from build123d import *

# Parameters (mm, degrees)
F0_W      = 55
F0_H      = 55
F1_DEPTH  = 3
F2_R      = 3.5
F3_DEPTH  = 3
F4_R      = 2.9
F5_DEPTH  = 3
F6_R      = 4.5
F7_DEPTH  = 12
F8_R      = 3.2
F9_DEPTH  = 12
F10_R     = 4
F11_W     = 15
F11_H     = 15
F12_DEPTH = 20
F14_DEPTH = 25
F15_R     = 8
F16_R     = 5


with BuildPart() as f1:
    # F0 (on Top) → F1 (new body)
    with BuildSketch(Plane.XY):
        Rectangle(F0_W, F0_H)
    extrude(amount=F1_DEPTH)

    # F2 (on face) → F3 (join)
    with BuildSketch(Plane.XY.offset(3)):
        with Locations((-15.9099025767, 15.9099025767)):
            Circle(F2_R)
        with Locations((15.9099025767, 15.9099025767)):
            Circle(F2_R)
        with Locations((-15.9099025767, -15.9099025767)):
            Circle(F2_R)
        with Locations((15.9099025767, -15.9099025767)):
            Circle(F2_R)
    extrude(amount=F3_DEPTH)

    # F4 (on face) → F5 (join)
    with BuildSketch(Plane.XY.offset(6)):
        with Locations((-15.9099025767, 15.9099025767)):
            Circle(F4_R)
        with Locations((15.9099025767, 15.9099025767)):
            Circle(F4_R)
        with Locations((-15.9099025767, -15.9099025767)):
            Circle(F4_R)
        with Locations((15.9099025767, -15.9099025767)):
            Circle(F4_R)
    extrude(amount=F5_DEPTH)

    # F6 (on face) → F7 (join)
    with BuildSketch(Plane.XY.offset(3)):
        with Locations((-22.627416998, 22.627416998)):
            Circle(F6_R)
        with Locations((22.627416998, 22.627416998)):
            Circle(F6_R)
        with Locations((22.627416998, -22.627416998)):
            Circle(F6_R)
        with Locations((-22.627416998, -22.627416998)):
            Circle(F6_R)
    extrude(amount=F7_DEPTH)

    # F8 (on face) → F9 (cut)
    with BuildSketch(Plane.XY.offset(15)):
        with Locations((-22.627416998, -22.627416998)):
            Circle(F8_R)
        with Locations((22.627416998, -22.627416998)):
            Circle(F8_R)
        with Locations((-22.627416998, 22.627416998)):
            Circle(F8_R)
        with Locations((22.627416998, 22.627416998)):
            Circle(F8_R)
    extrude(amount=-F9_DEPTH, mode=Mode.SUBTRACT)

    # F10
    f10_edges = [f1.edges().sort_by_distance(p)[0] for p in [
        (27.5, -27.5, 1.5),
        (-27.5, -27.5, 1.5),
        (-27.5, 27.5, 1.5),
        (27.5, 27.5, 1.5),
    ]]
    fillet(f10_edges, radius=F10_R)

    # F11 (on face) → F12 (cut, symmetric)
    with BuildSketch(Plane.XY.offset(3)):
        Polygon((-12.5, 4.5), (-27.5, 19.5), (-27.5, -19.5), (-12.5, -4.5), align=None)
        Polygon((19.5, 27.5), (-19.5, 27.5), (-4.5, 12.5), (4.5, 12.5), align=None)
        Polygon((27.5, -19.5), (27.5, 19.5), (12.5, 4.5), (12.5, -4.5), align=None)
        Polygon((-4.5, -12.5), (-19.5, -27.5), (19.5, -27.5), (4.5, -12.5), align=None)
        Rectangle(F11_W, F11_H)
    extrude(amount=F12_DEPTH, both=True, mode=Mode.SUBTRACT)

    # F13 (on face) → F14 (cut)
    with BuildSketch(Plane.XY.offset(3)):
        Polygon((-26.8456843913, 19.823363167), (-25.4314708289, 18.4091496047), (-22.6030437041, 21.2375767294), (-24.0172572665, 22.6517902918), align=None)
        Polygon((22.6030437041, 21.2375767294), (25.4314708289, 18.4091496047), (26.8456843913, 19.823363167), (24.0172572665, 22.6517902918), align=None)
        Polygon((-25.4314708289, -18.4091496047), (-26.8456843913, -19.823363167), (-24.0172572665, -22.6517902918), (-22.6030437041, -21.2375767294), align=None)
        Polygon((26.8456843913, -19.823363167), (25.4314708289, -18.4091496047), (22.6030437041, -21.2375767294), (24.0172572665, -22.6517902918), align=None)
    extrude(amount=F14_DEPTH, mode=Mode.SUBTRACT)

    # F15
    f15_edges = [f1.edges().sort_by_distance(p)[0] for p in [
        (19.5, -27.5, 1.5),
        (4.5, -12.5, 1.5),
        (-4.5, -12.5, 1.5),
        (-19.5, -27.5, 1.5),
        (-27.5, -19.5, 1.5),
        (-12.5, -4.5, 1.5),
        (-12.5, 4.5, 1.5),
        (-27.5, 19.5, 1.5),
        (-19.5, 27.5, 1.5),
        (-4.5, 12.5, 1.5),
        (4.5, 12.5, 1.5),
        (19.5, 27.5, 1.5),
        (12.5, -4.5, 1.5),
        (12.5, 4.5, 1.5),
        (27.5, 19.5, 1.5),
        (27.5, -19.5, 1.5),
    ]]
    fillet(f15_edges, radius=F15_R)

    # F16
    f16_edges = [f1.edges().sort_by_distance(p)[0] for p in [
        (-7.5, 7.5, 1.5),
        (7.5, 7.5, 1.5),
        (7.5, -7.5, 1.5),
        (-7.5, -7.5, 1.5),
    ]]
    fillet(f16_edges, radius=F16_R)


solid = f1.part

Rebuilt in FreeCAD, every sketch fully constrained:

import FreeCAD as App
import Part
import Sketcher

V = App.Vector


def edges_at(feature, points):
    """Names of the edges that pass closest to the given points."""
    edges = feature.Shape.Edges
    near = lambda p: min(range(len(edges)), key=lambda i: edges[i].distToShape(Part.Vertex(*p))[0])
    return sorted({f"Edge{near(p) + 1}" for p in points})


def add_polygon(sketch, points):
    """Adds a closed chain of lines whose ends are joined by coincident constraints."""
    first, n = sketch.GeometryCount, len(points)
    for a, b in zip(points, points[1:] + points[:1]):
        sketch.addGeometry(Part.LineSegment(App.Vector(*a, 0), App.Vector(*b, 0)), False)
    for i in range(n):
        sketch.addConstraint(Sketcher.Constraint("Coincident", first + i, 2, first + (i + 1) % n, 1))

doc = App.newDocument("Part")
body = doc.addObject("PartDesign::Body", "Body")

# Sketch on XY plane
sketch1 = body.newObject("Sketcher::SketchObject", "Sketch")
sketch1.AttachmentSupport = (doc.getObject("XY_Plane"), [""])
sketch1.MapMode = "FlatFace"
add_polygon(sketch1, [(-28, 28), (-28, -28), (28, -28), (28, 28)])  # lines 0-3
sketch1.addConstraint([
    Sketcher.Constraint("Vertical", 0),
    Sketcher.Constraint("Horizontal", 1),
    Sketcher.Constraint("Vertical", 2),
    Sketcher.Constraint("Horizontal", 3),
    Sketcher.Constraint("Symmetric", 0, 2, 2, 2, -1, 1),
    Sketcher.Constraint("Equal", 3, 0),
    Sketcher.Constraint("DistanceX", 1, 1, 1, 2, 55.0),
])
pad1 = body.newObject("PartDesign::Pad", "Pad")
pad1.Profile = sketch1
pad1.Length = 3

# Sketch on XY plane
sketch2 = body.newObject("Sketcher::SketchObject", "Sketch001")
sketch2.AttachmentSupport = (doc.getObject("XY_Plane"), [""])
sketch2.MapMode = "FlatFace"
sketch2.AttachmentOffset = App.Placement(V(0, 0, 3), App.Rotation())
sketch2.addGeometry([
    Part.Circle(V(-15.9, 15.9, 0), V(0, 0, 1), 3.5),
    Part.Circle(V(15.9, 15.9, 0), V(0, 0, 1), 3.5),
    Part.Circle(V(-15.9, -15.9, 0), V(0, 0, 1), 3.5),
    Part.Circle(V(15.9, -15.9, 0), V(0, 0, 1), 3.5),
], False)
sketch2.addConstraint([
    Sketcher.Constraint("Equal", 0, 1),
    Sketcher.Constraint("Equal", 1, 2),
    Sketcher.Constraint("Equal", 2, 3),
    Sketcher.Constraint("Symmetric", 1, 3, 2, 3, -1, 1),
    Sketcher.Constraint("Symmetric", 0, 3, 3, 3, -1, 1),
    Sketcher.Constraint("Symmetric", 0, 3, 1, 3, -2),
    Sketcher.Constraint("Diameter", 0, 7.0),
    Sketcher.Constraint("DistanceX", 0, 3, -1, 1, 15.909903),
    Sketcher.Constraint("DistanceY", -1, 1, 0, 3, 15.909903),
])
pad2 = body.newObject("PartDesign::Pad", "Pad001")
pad2.Profile = sketch2
pad2.Length = 3

# Sketch on XY plane
sketch3 = body.newObject("Sketcher::SketchObject", "Sketch002")
sketch3.AttachmentSupport = (doc.getObject("XY_Plane"), [""])
sketch3.MapMode = "FlatFace"
sketch3.AttachmentOffset = App.Placement(V(0, 0, 6), App.Rotation())
sketch3.addGeometry([
    Part.Circle(V(-15.9, 15.9, 0), V(0, 0, 1), 2.9),
    Part.Circle(V(15.9, 15.9, 0), V(0, 0, 1), 2.9),
    Part.Circle(V(-15.9, -15.9, 0), V(0, 0, 1), 2.9),
    Part.Circle(V(15.9, -15.9, 0), V(0, 0, 1), 2.9),
], False)
sketch3.addConstraint([
    Sketcher.Constraint("Equal", 0, 1),
    Sketcher.Constraint("Equal", 1, 2),
    Sketcher.Constraint("Equal", 2, 3),
    Sketcher.Constraint("Symmetric", 1, 3, 2, 3, -1, 1),
    Sketcher.Constraint("Symmetric", 0, 3, 3, 3, -1, 1),
    Sketcher.Constraint("Symmetric", 0, 3, 1, 3, -2),
    Sketcher.Constraint("Diameter", 0, 5.8),
    Sketcher.Constraint("DistanceX", 0, 3, -1, 1, 15.909903),
    Sketcher.Constraint("DistanceY", -1, 1, 0, 3, 15.909903),
])
pad3 = body.newObject("PartDesign::Pad", "Pad002")
pad3.Profile = sketch3
pad3.Length = 3

# Sketch on XY plane
sketch4 = body.newObject("Sketcher::SketchObject", "Sketch003")
sketch4.AttachmentSupport = (doc.getObject("XY_Plane"), [""])
sketch4.MapMode = "FlatFace"
sketch4.AttachmentOffset = App.Placement(V(0, 0, 3), App.Rotation())
sketch4.addGeometry([
    Part.Circle(V(-22.6, 22.6, 0), V(0, 0, 1), 4.5),
    Part.Circle(V(22.6, 22.6, 0), V(0, 0, 1), 4.5),
    Part.Circle(V(22.6, -22.6, 0), V(0, 0, 1), 4.5),
    Part.Circle(V(-22.6, -22.6, 0), V(0, 0, 1), 4.5),
], False)
sketch4.addConstraint([
    Sketcher.Constraint("Equal", 0, 1),
    Sketcher.Constraint("Equal", 1, 2),
    Sketcher.Constraint("Equal", 2, 3),
    Sketcher.Constraint("Symmetric", 0, 3, 2, 3, -1, 1),
    Sketcher.Constraint("Symmetric", 1, 3, 3, 3, -1, 1),
    Sketcher.Constraint("Symmetric", 0, 3, 1, 3, -2),
    Sketcher.Constraint("Diameter", 0, 9.0),
    Sketcher.Constraint("DistanceX", 0, 3, -1, 1, 22.627417),
    Sketcher.Constraint("DistanceY", -1, 1, 0, 3, 22.627417),
])
pad4 = body.newObject("PartDesign::Pad", "Pad003")
pad4.Profile = sketch4
pad4.Length = 12

# Sketch on XY plane
sketch5 = body.newObject("Sketcher::SketchObject", "Sketch004")
sketch5.AttachmentSupport = (doc.getObject("XY_Plane"), [""])
sketch5.MapMode = "FlatFace"
sketch5.AttachmentOffset = App.Placement(V(0, 0, 15), App.Rotation())
sketch5.addGeometry([
    Part.Circle(V(-22.6, -22.6, 0), V(0, 0, 1), 3.2),
    Part.Circle(V(22.6, -22.6, 0), V(0, 0, 1), 3.2),
    Part.Circle(V(-22.6, 22.6, 0), V(0, 0, 1), 3.2),
    Part.Circle(V(22.6, 22.6, 0), V(0, 0, 1), 3.2),
], False)
sketch5.addConstraint([
    Sketcher.Constraint("Equal", 0, 1),
    Sketcher.Constraint("Equal", 1, 2),
    Sketcher.Constraint("Equal", 2, 3),
    Sketcher.Constraint("Symmetric", 1, 3, 2, 3, -1, 1),
    Sketcher.Constraint("Symmetric", 0, 3, 3, 3, -1, 1),
    Sketcher.Constraint("Symmetric", 0, 3, 1, 3, -2),
    Sketcher.Constraint("Diameter", 0, 6.4),
    Sketcher.Constraint("DistanceX", 0, 3, -1, 1, 22.627417),
    Sketcher.Constraint("DistanceY", 0, 3, -1, 1, 22.627417),
])
pocket1 = body.newObject("PartDesign::Pocket", "Pocket")
pocket1.Profile = sketch5
pocket1.Length = 12
doc.recompute()

fillet = body.newObject("PartDesign::Fillet", "Fillet")
fillet.Base = (pocket1, edges_at(pocket1, [
    (27.5, -27.5, 1.5),
    (-27.5, -27.5, 1.5),
    (-27.5, 27.5, 1.5),
    (27.5, 27.5, 1.5),
]))
fillet.Radius = 4

# Sketch on XY plane
sketch6 = body.newObject("Sketcher::SketchObject", "Sketch005")
sketch6.AttachmentSupport = (doc.getObject("XY_Plane"), [""])
sketch6.MapMode = "FlatFace"
sketch6.AttachmentOffset = App.Placement(V(0, 0, 3), App.Rotation())
add_polygon(sketch6, [(-12, 4), (-28, 20), (-28, -20), (-12, -4)])  # lines 0-3
add_polygon(sketch6, [(20, 28), (-20, 28), (-4, 12), (4, 12)])  # lines 4-7
add_polygon(sketch6, [(28, -20), (28, 20), (12, 4), (12, -4)])  # lines 8-11
add_polygon(sketch6, [(-4, -12), (-20, -28), (20, -28), (4, -12)])  # lines 12-15
add_polygon(sketch6, [(-8, 8), (-8, -8), (8, -8), (8, 8)])  # lines 16-19
sketch6.addConstraint([
    Sketcher.Constraint("Vertical", 1),
    Sketcher.Constraint("Vertical", 3),
    Sketcher.Constraint("Horizontal", 4),
    Sketcher.Constraint("Horizontal", 6),
    Sketcher.Constraint("Vertical", 8),
    Sketcher.Constraint("Vertical", 10),
    Sketcher.Constraint("Horizontal", 13),
    Sketcher.Constraint("Horizontal", 15),
    Sketcher.Constraint("Vertical", 16),
    Sketcher.Constraint("Horizontal", 17),
    Sketcher.Constraint("Vertical", 18),
    Sketcher.Constraint("Horizontal", 19),
    Sketcher.Constraint("Symmetric", 1, 2, 8, 2, -1, 1),
    Sketcher.Constraint("Symmetric", 2, 2, 9, 2, -1, 1),
    Sketcher.Constraint("Symmetric", 7, 2, 12, 2, -1, 1),
    Sketcher.Constraint("Symmetric", 5, 2, 14, 2, -1, 1),
    Sketcher.Constraint("Symmetric", 16, 2, 18, 2, -1, 1),
    Sketcher.Constraint("Perpendicular", 0, 2),
    Sketcher.Constraint("Perpendicular", 2, 5),
    Sketcher.Constraint("Perpendicular", 5, 7),
    Sketcher.Constraint("Perpendicular", 9, 11),
    Sketcher.Constraint("Perpendicular", 11, 12),
    Sketcher.Constraint("Perpendicular", 12, 14),
    Sketcher.Constraint("Horizontal", 0, 2, 8, 2),
    Sketcher.Constraint("Horizontal", 3, 2, 9, 2),
    Sketcher.Constraint("Horizontal", 2, 2, 10, 2),
    Sketcher.Constraint("Vertical", 4, 2, 12, 2),
    Sketcher.Constraint("Equal", 13, 1),
    Sketcher.Constraint("Equal", 15, 3),
    Sketcher.Constraint("Equal", 19, 16),
    Sketcher.Constraint("DistanceX", 4, 2, 4, 1, 39.0),
    Sketcher.Constraint("DistanceX", 6, 1, 6, 2, 9.0),
    Sketcher.Constraint("DistanceX", 17, 1, 17, 2, 15.0),
    Sketcher.Constraint("DistanceX", 0, 2, 4, 2, 8.0),
    Sketcher.Constraint("DistanceY", 0, 2, 4, 2, 8.0),
])
pocket2 = body.newObject("PartDesign::Pocket", "Pocket001")
pocket2.Profile = sketch6
pocket2.Length = 40
pocket2.Midplane = True

# Sketch on XY plane
sketch7 = body.newObject("Sketcher::SketchObject", "Sketch006")
sketch7.AttachmentSupport = (doc.getObject("XY_Plane"), [""])
sketch7.MapMode = "FlatFace"
sketch7.AttachmentOffset = App.Placement(V(0, 0, 3), App.Rotation())
add_polygon(sketch7, [(-26.8, 19.8), (-25.4, 18.4), (-22.6, 21.2), (-24, 22.7)])  # lines 0-3
add_polygon(sketch7, [(22.6, 21.2), (25.4, 18.4), (26.8, 19.8), (24, 22.7)])  # lines 4-7
add_polygon(sketch7, [(-25.4, -18.4), (-26.8, -19.8), (-24, -22.7), (-22.6, -21.2)])  # lines 8-11
add_polygon(sketch7, [(26.8, -19.8), (25.4, -18.4), (22.6, -21.2), (24, -22.7)])  # lines 12-15
sketch7.addConstraint([
    Sketcher.Constraint("Symmetric", 5, 2, 8, 2, -1, 1),
    Sketcher.Constraint("Symmetric", 6, 2, 9, 2, -1, 1),
    Sketcher.Constraint("Symmetric", 7, 2, 10, 2, -1, 1),
    Sketcher.Constraint("Symmetric", 4, 2, 11, 2, -1, 1),
    Sketcher.Constraint("Symmetric", 0, 2, 12, 2, -1, 1),
    Sketcher.Constraint("Symmetric", 1, 2, 13, 2, -1, 1),
    Sketcher.Constraint("Symmetric", 2, 2, 14, 2, -1, 1),
    Sketcher.Constraint("Symmetric", 3, 2, 15, 2, -1, 1),
    Sketcher.Constraint("Symmetric", 0, 2, 4, 2, -2),
    Sketcher.Constraint("Symmetric", 3, 2, 5, 2, -2),
    Sketcher.Constraint("Symmetric", 2, 2, 6, 2, -2),
    Sketcher.Constraint("Symmetric", 1, 2, 7, 2, -2),
    Sketcher.Constraint("Perpendicular", 0, 1),
    Sketcher.Constraint("Perpendicular", 1, 2),
    Sketcher.Constraint("Perpendicular", 2, 3),
    Sketcher.Constraint("Perpendicular", 3, 4),
    Sketcher.Constraint("Distance", 0, 2.0),
    Sketcher.Constraint("Distance", 1, 4.0),
    Sketcher.Constraint("DistanceX", 1, 2, 6, 2, 46.620301),
    Sketcher.Constraint("DistanceY", 11, 2, 0, 2, 36.818299),
])
pocket3 = body.newObject("PartDesign::Pocket", "Pocket002")
pocket3.Profile = sketch7
pocket3.Length = 25
pocket3.Reversed = True
doc.recompute()

fillet2 = body.newObject("PartDesign::Fillet", "Fillet001")
fillet2.Base = (pocket3, edges_at(pocket3, [
    (19.5, -27.5, 1.5),
    (4.5, -12.5, 1.5),
    (-4.5, -12.5, 1.5),
    (-19.5, -27.5, 1.5),
    (-27.5, -19.5, 1.5),
    (-12.5, -4.5, 1.5),
    (-12.5, 4.5, 1.5),
    (-27.5, 19.5, 1.5),
    (-19.5, 27.5, 1.5),
    (-4.5, 12.5, 1.5),
    (4.5, 12.5, 1.5),
    (19.5, 27.5, 1.5),
    (12.5, -4.5, 1.5),
    (12.5, 4.5, 1.5),
    (27.5, 19.5, 1.5),
    (27.5, -19.5, 1.5),
]))
fillet2.Radius = 8
doc.recompute()

fillet3 = body.newObject("PartDesign::Fillet", "Fillet002")
fillet3.Base = (fillet2, edges_at(fillet2, [
    (-7.5, 7.5, 1.5),
    (7.5, 7.5, 1.5),
    (7.5, -7.5, 1.5),
    (-7.5, -7.5, 1.5),
]))
fillet3.Radius = 5

doc.recompute()
